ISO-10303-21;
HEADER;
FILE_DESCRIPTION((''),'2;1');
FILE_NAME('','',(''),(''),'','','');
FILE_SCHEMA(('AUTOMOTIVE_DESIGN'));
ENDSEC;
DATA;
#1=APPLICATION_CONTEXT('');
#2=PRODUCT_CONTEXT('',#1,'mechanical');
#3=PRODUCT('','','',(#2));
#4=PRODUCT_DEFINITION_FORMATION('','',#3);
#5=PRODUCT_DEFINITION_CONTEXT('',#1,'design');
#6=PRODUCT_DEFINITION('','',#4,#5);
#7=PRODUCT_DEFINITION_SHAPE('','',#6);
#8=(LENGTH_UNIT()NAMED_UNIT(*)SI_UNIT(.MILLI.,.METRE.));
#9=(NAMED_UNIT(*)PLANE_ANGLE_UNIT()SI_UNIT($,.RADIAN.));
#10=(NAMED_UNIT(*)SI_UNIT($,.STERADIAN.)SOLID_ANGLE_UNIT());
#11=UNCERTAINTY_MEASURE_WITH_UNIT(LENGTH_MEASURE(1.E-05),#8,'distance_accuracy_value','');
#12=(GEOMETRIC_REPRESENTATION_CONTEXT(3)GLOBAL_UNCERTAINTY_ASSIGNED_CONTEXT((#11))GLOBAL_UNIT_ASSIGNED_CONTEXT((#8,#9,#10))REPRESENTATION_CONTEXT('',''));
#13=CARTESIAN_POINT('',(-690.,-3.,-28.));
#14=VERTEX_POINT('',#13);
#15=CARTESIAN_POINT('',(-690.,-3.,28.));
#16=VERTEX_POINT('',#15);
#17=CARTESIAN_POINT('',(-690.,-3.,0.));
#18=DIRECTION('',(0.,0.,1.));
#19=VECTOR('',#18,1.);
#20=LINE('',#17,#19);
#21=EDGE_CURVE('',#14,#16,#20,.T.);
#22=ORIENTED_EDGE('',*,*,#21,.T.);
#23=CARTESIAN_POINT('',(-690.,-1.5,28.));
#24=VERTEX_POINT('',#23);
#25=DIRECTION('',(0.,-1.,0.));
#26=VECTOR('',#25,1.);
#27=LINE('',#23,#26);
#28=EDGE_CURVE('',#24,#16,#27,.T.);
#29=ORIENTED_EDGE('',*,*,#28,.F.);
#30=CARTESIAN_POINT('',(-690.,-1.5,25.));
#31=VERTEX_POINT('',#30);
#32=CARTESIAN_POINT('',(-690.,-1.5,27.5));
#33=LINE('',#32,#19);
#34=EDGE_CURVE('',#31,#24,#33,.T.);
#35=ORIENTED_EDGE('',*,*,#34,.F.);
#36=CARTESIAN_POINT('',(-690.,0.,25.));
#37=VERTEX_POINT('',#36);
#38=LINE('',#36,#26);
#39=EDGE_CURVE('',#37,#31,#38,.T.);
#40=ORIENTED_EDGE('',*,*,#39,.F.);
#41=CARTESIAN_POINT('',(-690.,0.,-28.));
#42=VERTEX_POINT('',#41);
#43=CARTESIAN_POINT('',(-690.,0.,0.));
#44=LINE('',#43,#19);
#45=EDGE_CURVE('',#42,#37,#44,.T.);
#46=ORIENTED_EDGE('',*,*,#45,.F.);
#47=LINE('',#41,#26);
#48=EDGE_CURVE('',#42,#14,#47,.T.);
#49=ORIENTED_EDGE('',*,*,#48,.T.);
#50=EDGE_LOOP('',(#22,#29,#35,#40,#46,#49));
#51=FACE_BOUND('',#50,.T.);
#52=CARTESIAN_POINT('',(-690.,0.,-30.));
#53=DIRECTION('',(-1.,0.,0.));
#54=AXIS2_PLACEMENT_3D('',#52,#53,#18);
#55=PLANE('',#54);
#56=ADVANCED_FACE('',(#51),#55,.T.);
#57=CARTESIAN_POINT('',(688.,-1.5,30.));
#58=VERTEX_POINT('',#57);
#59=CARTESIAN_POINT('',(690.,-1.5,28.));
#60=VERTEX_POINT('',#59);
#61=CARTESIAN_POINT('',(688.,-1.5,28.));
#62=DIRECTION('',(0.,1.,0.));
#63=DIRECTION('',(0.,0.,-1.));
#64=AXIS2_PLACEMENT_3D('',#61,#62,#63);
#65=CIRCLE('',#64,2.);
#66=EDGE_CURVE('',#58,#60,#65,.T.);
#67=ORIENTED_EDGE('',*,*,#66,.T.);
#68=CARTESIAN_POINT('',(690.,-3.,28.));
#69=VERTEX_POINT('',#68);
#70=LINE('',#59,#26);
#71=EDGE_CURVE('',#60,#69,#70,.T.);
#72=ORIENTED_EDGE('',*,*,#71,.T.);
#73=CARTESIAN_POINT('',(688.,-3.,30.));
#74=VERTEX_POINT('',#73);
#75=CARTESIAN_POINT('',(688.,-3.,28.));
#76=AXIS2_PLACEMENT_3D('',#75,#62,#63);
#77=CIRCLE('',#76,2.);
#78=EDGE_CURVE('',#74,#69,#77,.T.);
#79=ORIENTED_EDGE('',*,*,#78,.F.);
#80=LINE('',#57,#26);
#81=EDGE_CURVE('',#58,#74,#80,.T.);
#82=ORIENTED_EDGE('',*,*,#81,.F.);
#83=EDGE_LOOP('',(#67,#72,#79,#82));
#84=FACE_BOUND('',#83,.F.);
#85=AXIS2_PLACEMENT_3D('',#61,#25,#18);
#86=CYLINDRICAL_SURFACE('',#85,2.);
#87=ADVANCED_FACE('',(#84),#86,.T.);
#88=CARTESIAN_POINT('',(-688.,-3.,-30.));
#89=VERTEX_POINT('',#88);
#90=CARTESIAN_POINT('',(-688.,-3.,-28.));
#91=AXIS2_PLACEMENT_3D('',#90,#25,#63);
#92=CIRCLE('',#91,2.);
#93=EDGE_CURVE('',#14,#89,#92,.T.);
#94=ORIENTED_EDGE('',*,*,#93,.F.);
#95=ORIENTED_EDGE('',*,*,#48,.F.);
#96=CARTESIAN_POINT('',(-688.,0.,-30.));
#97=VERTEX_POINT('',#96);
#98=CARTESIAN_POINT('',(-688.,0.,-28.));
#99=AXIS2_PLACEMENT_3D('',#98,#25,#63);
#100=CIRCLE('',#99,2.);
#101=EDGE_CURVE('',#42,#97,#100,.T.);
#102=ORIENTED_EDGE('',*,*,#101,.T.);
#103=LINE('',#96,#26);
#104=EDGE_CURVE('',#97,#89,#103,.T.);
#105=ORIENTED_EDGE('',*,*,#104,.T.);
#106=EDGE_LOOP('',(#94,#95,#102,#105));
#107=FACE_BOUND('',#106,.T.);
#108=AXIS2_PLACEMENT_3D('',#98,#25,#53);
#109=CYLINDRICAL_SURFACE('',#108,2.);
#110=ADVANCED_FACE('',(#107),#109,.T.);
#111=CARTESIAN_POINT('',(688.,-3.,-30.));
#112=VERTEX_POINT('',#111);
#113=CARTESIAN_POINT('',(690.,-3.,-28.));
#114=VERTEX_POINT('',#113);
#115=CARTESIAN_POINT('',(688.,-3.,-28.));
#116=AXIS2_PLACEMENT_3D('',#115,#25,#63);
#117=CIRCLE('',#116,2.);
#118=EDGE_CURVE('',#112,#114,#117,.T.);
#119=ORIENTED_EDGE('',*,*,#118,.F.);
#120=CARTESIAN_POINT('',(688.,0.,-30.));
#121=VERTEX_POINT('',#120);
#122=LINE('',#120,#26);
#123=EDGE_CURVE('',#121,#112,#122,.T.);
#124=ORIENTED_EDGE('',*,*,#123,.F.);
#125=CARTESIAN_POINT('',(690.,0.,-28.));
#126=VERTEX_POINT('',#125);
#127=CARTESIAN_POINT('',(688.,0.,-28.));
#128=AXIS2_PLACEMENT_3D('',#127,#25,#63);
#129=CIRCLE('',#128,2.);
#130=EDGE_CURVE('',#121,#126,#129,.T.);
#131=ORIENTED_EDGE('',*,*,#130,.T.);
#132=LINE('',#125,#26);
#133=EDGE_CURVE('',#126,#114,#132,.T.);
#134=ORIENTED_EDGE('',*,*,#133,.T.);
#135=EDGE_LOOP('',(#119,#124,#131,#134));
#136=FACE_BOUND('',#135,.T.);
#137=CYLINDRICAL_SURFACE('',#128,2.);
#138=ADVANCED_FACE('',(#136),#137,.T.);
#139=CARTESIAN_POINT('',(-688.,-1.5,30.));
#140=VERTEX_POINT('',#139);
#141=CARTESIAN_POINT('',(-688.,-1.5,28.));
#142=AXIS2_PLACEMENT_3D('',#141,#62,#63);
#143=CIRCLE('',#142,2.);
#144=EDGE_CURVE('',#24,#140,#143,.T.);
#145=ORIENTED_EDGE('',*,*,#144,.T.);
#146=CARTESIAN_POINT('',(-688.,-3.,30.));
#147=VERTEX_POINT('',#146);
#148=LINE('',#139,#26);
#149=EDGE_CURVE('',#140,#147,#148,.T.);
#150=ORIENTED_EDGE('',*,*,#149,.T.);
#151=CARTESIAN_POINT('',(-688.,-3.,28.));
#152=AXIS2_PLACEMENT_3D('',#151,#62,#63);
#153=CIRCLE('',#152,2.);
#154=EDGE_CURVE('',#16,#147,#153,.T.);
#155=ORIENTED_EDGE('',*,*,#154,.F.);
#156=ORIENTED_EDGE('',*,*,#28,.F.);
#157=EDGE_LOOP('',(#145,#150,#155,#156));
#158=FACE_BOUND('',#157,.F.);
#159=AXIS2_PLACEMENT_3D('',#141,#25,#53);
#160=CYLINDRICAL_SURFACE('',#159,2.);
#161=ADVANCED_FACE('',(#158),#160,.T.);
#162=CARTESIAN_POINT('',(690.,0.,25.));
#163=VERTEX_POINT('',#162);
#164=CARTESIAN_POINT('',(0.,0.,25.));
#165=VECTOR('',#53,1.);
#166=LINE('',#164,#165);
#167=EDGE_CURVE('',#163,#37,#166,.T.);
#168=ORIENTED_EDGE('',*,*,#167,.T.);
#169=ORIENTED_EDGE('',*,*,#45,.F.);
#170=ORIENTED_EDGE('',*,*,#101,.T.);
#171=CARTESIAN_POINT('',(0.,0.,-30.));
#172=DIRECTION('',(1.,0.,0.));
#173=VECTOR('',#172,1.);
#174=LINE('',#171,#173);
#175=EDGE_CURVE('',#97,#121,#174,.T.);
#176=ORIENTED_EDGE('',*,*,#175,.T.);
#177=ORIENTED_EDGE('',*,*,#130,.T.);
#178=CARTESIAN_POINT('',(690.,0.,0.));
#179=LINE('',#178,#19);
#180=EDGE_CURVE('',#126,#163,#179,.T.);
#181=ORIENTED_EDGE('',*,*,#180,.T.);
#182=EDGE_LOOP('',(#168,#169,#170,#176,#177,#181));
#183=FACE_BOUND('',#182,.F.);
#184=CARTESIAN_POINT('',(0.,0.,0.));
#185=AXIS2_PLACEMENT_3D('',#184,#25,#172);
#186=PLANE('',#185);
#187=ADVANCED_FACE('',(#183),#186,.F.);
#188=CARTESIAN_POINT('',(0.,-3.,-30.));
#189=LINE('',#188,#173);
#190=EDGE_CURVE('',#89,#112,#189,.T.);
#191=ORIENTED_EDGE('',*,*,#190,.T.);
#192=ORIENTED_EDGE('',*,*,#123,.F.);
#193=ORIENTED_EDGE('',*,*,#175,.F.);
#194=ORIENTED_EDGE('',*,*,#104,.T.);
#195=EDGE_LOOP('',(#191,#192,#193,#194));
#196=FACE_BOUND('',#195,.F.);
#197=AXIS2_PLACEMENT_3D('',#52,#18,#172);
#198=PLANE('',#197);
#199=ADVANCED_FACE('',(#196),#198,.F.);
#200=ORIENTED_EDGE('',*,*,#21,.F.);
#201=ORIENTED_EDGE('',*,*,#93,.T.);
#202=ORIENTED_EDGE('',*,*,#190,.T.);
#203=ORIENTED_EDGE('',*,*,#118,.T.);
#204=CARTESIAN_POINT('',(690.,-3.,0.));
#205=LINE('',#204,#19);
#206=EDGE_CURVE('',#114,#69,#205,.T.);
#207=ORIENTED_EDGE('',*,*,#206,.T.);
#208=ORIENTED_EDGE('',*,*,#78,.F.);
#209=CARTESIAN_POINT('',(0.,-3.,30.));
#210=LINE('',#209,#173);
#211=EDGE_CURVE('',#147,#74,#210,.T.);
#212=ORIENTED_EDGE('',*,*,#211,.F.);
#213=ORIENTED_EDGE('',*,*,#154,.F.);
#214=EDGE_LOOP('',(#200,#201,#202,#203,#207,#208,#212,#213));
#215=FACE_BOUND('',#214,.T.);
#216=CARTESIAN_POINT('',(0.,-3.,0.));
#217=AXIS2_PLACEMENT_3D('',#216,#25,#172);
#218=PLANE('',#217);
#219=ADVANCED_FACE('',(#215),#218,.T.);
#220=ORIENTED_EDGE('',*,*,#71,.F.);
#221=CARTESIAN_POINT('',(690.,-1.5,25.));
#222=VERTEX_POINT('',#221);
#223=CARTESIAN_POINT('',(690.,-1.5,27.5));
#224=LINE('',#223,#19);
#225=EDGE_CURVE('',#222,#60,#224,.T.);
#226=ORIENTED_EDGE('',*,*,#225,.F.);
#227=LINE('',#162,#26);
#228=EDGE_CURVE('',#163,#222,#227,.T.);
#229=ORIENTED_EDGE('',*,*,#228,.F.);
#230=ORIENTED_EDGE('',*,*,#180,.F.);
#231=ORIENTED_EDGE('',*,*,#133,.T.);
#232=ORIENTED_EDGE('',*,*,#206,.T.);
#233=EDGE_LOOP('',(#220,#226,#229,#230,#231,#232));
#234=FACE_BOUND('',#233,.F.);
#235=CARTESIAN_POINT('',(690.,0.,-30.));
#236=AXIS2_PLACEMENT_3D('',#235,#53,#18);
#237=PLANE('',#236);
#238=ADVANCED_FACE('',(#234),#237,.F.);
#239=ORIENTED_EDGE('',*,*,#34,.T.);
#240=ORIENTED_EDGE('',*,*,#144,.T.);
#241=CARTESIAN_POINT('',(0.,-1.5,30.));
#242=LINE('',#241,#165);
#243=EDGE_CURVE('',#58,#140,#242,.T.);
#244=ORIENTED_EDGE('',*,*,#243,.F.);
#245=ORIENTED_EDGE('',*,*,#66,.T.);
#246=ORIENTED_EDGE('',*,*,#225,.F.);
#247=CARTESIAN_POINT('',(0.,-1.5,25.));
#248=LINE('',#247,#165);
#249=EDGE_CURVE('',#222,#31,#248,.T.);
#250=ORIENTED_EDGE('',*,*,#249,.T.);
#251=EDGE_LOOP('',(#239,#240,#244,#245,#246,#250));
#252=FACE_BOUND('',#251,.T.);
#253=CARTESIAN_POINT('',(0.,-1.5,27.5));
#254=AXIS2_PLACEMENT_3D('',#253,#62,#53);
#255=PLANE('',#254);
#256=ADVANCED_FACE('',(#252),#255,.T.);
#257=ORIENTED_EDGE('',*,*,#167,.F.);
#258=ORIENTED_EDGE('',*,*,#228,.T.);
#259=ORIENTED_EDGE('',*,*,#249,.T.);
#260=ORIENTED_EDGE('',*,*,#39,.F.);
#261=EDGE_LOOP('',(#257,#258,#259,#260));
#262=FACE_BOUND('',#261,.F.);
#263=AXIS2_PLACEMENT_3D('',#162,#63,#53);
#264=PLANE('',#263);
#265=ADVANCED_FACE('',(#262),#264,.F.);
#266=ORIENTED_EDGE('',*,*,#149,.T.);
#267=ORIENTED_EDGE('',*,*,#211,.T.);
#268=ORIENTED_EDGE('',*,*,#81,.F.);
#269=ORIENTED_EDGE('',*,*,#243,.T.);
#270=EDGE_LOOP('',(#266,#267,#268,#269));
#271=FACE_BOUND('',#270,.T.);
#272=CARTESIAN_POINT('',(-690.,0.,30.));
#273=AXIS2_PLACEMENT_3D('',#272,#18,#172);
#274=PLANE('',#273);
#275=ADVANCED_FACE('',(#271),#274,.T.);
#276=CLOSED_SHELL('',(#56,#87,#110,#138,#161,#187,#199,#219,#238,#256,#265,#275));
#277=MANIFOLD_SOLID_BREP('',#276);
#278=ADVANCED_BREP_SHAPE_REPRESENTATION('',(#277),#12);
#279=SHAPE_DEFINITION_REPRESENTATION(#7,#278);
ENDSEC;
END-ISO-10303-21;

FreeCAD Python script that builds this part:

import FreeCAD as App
import Part
import Sketcher
Q = App.Units.Quantity


def edges_at(feature, points):
    """Names of the edges that pass closest to the given points."""
    edges = feature.Shape.Edges
    near = lambda p: min(range(len(edges)), key=lambda i: edges[i].distToShape(Part.Vertex(*p))[0])
    return sorted({f"Edge{near(p) + 1}" for p in points})

doc = App.newDocument("Part")
params = doc.addObject("Spreadsheet::Sheet", "Params")
for row, (alias, value) in enumerate([
    ("sketch1_width", "1380 mm"),
    ("sketch1_height", "60 mm"),
    ("pad1_length", "3 mm"),
    ("sketch2_width", "1380 mm"),
    ("sketch2_height", "5 mm"),
    ("pocket1_length", "1.5 mm"),
    ("fillet_radius", "2 mm"),
], start=1):
    params.set(f"A{row}", alias)
    params.set(f"B{row}", "=" + value)
    params.setAlias(f"B{row}", alias)

body = doc.addObject("PartDesign::Body", "Body")

# Sketch on XZ plane
sketch1 = body.newObject("Sketcher::SketchObject", "Sketch")
sketch1.AttachmentSupport = (doc.getObject("XZ_Plane"), [""])
sketch1.MapMode = "FlatFace"
sketch1.addGeometry(Part.LineSegment(App.Vector(-690, 30, 0), App.Vector(-690, -30, 0)), False)
sketch1.addGeometry(Part.LineSegment(App.Vector(-690, -30, 0), App.Vector(690, -30, 0)), False)
sketch1.addGeometry(Part.LineSegment(App.Vector(690, -30, 0), App.Vector(690, 30, 0)), False)
sketch1.addGeometry(Part.LineSegment(App.Vector(690, 30, 0), App.Vector(-690, 30, 0)), False)
sketch1.addConstraint(Sketcher.Constraint("Coincident", 0, 2, 1, 1))
sketch1.addConstraint(Sketcher.Constraint("Coincident", 1, 2, 2, 1))
sketch1.addConstraint(Sketcher.Constraint("Coincident", 2, 2, 3, 1))
sketch1.addConstraint(Sketcher.Constraint("Coincident", 3, 2, 0, 1))
sketch1.addConstraint(Sketcher.Constraint("Vertical", 0))
sketch1.addConstraint(Sketcher.Constraint("Horizontal", 1))
sketch1.addConstraint(Sketcher.Constraint("Vertical", 2))
sketch1.addConstraint(Sketcher.Constraint("Horizontal", 3))
sketch1.addConstraint(Sketcher.Constraint("Symmetric", 0, 2, 2, 2, -1, 1))
sketch1.addConstraint(Sketcher.Constraint("DistanceX", 1, 1, 1, 2, Q("1380 mm")))
sketch1.addConstraint(Sketcher.Constraint("DistanceY", 0, 2, 0, 1, Q("60 mm")))
sketch1.setExpression("Constraints[9]", "Params.sketch1_width")
sketch1.setExpression("Constraints[10]", "Params.sketch1_height")
pad1 = body.newObject("PartDesign::Pad", "Pad")
pad1.Profile = sketch1
pad1.setExpression("Length", "Params.pad1_length")

# Sketch on XZ plane
sketch2 = body.newObject("Sketcher::SketchObject", "Sketch001")
sketch2.AttachmentSupport = (doc.getObject("XZ_Plane"), [""])
sketch2.MapMode = "FlatFace"
sketch2.addGeometry(Part.LineSegment(App.Vector(690, 30, 0), App.Vector(690, 25, 0)), False)
sketch2.addGeometry(Part.LineSegment(App.Vector(690, 25, 0), App.Vector(-690, 25, 0)), False)
sketch2.addGeometry(Part.LineSegment(App.Vector(-690, 25, 0), App.Vector(-690, 30, 0)), False)
sketch2.addGeometry(Part.LineSegment(App.Vector(-690, 30, 0), App.Vector(690, 30, 0)), False)
sketch2.addConstraint(Sketcher.Constraint("Coincident", 0, 2, 1, 1))
sketch2.addConstraint(Sketcher.Constraint("Coincident", 1, 2, 2, 1))
sketch2.addConstraint(Sketcher.Constraint("Coincident", 2, 2, 3, 1))
sketch2.addConstraint(Sketcher.Constraint("Coincident", 3, 2, 0, 1))
sketch2.addConstraint(Sketcher.Constraint("Vertical", 0))
sketch2.addConstraint(Sketcher.Constraint("Horizontal", 1))
sketch2.addConstraint(Sketcher.Constraint("Vertical", 2))
sketch2.addConstraint(Sketcher.Constraint("Horizontal", 3))
sketch2.addConstraint(Sketcher.Constraint("DistanceX", 1, 2, 1, 1, Q("1380 mm")))
sketch2.addConstraint(Sketcher.Constraint("DistanceY", 0, 2, 0, 1, Q("5 mm")))
sketch2.addConstraint(Sketcher.Constraint("DistanceX", -1, 1, 0, 2, Q("690 mm")))
sketch2.addConstraint(Sketcher.Constraint("DistanceY", -1, 1, 0, 2, Q("25 mm")))
sketch2.setExpression("Constraints[8]", "Params.sketch2_width")
sketch2.setExpression("Constraints[9]", "Params.sketch2_height")
pocket1 = body.newObject("PartDesign::Pocket", "Pocket")
pocket1.Profile = sketch2
pocket1.setExpression("Length", "Params.pocket1_length")
pocket1.Reversed = True
doc.recompute()

fillet = body.newObject("PartDesign::Fillet", "Fillet")
fillet.Base = (pocket1, edges_at(pocket1, [
    (690, -2.25, 30),
    (690, -1.5, -30),
    (-690, -2.25, 30),
    (-690, -1.5, -30),
]))
fillet.setExpression("Radius", "Params.fillet_radius")

doc.recompute()
